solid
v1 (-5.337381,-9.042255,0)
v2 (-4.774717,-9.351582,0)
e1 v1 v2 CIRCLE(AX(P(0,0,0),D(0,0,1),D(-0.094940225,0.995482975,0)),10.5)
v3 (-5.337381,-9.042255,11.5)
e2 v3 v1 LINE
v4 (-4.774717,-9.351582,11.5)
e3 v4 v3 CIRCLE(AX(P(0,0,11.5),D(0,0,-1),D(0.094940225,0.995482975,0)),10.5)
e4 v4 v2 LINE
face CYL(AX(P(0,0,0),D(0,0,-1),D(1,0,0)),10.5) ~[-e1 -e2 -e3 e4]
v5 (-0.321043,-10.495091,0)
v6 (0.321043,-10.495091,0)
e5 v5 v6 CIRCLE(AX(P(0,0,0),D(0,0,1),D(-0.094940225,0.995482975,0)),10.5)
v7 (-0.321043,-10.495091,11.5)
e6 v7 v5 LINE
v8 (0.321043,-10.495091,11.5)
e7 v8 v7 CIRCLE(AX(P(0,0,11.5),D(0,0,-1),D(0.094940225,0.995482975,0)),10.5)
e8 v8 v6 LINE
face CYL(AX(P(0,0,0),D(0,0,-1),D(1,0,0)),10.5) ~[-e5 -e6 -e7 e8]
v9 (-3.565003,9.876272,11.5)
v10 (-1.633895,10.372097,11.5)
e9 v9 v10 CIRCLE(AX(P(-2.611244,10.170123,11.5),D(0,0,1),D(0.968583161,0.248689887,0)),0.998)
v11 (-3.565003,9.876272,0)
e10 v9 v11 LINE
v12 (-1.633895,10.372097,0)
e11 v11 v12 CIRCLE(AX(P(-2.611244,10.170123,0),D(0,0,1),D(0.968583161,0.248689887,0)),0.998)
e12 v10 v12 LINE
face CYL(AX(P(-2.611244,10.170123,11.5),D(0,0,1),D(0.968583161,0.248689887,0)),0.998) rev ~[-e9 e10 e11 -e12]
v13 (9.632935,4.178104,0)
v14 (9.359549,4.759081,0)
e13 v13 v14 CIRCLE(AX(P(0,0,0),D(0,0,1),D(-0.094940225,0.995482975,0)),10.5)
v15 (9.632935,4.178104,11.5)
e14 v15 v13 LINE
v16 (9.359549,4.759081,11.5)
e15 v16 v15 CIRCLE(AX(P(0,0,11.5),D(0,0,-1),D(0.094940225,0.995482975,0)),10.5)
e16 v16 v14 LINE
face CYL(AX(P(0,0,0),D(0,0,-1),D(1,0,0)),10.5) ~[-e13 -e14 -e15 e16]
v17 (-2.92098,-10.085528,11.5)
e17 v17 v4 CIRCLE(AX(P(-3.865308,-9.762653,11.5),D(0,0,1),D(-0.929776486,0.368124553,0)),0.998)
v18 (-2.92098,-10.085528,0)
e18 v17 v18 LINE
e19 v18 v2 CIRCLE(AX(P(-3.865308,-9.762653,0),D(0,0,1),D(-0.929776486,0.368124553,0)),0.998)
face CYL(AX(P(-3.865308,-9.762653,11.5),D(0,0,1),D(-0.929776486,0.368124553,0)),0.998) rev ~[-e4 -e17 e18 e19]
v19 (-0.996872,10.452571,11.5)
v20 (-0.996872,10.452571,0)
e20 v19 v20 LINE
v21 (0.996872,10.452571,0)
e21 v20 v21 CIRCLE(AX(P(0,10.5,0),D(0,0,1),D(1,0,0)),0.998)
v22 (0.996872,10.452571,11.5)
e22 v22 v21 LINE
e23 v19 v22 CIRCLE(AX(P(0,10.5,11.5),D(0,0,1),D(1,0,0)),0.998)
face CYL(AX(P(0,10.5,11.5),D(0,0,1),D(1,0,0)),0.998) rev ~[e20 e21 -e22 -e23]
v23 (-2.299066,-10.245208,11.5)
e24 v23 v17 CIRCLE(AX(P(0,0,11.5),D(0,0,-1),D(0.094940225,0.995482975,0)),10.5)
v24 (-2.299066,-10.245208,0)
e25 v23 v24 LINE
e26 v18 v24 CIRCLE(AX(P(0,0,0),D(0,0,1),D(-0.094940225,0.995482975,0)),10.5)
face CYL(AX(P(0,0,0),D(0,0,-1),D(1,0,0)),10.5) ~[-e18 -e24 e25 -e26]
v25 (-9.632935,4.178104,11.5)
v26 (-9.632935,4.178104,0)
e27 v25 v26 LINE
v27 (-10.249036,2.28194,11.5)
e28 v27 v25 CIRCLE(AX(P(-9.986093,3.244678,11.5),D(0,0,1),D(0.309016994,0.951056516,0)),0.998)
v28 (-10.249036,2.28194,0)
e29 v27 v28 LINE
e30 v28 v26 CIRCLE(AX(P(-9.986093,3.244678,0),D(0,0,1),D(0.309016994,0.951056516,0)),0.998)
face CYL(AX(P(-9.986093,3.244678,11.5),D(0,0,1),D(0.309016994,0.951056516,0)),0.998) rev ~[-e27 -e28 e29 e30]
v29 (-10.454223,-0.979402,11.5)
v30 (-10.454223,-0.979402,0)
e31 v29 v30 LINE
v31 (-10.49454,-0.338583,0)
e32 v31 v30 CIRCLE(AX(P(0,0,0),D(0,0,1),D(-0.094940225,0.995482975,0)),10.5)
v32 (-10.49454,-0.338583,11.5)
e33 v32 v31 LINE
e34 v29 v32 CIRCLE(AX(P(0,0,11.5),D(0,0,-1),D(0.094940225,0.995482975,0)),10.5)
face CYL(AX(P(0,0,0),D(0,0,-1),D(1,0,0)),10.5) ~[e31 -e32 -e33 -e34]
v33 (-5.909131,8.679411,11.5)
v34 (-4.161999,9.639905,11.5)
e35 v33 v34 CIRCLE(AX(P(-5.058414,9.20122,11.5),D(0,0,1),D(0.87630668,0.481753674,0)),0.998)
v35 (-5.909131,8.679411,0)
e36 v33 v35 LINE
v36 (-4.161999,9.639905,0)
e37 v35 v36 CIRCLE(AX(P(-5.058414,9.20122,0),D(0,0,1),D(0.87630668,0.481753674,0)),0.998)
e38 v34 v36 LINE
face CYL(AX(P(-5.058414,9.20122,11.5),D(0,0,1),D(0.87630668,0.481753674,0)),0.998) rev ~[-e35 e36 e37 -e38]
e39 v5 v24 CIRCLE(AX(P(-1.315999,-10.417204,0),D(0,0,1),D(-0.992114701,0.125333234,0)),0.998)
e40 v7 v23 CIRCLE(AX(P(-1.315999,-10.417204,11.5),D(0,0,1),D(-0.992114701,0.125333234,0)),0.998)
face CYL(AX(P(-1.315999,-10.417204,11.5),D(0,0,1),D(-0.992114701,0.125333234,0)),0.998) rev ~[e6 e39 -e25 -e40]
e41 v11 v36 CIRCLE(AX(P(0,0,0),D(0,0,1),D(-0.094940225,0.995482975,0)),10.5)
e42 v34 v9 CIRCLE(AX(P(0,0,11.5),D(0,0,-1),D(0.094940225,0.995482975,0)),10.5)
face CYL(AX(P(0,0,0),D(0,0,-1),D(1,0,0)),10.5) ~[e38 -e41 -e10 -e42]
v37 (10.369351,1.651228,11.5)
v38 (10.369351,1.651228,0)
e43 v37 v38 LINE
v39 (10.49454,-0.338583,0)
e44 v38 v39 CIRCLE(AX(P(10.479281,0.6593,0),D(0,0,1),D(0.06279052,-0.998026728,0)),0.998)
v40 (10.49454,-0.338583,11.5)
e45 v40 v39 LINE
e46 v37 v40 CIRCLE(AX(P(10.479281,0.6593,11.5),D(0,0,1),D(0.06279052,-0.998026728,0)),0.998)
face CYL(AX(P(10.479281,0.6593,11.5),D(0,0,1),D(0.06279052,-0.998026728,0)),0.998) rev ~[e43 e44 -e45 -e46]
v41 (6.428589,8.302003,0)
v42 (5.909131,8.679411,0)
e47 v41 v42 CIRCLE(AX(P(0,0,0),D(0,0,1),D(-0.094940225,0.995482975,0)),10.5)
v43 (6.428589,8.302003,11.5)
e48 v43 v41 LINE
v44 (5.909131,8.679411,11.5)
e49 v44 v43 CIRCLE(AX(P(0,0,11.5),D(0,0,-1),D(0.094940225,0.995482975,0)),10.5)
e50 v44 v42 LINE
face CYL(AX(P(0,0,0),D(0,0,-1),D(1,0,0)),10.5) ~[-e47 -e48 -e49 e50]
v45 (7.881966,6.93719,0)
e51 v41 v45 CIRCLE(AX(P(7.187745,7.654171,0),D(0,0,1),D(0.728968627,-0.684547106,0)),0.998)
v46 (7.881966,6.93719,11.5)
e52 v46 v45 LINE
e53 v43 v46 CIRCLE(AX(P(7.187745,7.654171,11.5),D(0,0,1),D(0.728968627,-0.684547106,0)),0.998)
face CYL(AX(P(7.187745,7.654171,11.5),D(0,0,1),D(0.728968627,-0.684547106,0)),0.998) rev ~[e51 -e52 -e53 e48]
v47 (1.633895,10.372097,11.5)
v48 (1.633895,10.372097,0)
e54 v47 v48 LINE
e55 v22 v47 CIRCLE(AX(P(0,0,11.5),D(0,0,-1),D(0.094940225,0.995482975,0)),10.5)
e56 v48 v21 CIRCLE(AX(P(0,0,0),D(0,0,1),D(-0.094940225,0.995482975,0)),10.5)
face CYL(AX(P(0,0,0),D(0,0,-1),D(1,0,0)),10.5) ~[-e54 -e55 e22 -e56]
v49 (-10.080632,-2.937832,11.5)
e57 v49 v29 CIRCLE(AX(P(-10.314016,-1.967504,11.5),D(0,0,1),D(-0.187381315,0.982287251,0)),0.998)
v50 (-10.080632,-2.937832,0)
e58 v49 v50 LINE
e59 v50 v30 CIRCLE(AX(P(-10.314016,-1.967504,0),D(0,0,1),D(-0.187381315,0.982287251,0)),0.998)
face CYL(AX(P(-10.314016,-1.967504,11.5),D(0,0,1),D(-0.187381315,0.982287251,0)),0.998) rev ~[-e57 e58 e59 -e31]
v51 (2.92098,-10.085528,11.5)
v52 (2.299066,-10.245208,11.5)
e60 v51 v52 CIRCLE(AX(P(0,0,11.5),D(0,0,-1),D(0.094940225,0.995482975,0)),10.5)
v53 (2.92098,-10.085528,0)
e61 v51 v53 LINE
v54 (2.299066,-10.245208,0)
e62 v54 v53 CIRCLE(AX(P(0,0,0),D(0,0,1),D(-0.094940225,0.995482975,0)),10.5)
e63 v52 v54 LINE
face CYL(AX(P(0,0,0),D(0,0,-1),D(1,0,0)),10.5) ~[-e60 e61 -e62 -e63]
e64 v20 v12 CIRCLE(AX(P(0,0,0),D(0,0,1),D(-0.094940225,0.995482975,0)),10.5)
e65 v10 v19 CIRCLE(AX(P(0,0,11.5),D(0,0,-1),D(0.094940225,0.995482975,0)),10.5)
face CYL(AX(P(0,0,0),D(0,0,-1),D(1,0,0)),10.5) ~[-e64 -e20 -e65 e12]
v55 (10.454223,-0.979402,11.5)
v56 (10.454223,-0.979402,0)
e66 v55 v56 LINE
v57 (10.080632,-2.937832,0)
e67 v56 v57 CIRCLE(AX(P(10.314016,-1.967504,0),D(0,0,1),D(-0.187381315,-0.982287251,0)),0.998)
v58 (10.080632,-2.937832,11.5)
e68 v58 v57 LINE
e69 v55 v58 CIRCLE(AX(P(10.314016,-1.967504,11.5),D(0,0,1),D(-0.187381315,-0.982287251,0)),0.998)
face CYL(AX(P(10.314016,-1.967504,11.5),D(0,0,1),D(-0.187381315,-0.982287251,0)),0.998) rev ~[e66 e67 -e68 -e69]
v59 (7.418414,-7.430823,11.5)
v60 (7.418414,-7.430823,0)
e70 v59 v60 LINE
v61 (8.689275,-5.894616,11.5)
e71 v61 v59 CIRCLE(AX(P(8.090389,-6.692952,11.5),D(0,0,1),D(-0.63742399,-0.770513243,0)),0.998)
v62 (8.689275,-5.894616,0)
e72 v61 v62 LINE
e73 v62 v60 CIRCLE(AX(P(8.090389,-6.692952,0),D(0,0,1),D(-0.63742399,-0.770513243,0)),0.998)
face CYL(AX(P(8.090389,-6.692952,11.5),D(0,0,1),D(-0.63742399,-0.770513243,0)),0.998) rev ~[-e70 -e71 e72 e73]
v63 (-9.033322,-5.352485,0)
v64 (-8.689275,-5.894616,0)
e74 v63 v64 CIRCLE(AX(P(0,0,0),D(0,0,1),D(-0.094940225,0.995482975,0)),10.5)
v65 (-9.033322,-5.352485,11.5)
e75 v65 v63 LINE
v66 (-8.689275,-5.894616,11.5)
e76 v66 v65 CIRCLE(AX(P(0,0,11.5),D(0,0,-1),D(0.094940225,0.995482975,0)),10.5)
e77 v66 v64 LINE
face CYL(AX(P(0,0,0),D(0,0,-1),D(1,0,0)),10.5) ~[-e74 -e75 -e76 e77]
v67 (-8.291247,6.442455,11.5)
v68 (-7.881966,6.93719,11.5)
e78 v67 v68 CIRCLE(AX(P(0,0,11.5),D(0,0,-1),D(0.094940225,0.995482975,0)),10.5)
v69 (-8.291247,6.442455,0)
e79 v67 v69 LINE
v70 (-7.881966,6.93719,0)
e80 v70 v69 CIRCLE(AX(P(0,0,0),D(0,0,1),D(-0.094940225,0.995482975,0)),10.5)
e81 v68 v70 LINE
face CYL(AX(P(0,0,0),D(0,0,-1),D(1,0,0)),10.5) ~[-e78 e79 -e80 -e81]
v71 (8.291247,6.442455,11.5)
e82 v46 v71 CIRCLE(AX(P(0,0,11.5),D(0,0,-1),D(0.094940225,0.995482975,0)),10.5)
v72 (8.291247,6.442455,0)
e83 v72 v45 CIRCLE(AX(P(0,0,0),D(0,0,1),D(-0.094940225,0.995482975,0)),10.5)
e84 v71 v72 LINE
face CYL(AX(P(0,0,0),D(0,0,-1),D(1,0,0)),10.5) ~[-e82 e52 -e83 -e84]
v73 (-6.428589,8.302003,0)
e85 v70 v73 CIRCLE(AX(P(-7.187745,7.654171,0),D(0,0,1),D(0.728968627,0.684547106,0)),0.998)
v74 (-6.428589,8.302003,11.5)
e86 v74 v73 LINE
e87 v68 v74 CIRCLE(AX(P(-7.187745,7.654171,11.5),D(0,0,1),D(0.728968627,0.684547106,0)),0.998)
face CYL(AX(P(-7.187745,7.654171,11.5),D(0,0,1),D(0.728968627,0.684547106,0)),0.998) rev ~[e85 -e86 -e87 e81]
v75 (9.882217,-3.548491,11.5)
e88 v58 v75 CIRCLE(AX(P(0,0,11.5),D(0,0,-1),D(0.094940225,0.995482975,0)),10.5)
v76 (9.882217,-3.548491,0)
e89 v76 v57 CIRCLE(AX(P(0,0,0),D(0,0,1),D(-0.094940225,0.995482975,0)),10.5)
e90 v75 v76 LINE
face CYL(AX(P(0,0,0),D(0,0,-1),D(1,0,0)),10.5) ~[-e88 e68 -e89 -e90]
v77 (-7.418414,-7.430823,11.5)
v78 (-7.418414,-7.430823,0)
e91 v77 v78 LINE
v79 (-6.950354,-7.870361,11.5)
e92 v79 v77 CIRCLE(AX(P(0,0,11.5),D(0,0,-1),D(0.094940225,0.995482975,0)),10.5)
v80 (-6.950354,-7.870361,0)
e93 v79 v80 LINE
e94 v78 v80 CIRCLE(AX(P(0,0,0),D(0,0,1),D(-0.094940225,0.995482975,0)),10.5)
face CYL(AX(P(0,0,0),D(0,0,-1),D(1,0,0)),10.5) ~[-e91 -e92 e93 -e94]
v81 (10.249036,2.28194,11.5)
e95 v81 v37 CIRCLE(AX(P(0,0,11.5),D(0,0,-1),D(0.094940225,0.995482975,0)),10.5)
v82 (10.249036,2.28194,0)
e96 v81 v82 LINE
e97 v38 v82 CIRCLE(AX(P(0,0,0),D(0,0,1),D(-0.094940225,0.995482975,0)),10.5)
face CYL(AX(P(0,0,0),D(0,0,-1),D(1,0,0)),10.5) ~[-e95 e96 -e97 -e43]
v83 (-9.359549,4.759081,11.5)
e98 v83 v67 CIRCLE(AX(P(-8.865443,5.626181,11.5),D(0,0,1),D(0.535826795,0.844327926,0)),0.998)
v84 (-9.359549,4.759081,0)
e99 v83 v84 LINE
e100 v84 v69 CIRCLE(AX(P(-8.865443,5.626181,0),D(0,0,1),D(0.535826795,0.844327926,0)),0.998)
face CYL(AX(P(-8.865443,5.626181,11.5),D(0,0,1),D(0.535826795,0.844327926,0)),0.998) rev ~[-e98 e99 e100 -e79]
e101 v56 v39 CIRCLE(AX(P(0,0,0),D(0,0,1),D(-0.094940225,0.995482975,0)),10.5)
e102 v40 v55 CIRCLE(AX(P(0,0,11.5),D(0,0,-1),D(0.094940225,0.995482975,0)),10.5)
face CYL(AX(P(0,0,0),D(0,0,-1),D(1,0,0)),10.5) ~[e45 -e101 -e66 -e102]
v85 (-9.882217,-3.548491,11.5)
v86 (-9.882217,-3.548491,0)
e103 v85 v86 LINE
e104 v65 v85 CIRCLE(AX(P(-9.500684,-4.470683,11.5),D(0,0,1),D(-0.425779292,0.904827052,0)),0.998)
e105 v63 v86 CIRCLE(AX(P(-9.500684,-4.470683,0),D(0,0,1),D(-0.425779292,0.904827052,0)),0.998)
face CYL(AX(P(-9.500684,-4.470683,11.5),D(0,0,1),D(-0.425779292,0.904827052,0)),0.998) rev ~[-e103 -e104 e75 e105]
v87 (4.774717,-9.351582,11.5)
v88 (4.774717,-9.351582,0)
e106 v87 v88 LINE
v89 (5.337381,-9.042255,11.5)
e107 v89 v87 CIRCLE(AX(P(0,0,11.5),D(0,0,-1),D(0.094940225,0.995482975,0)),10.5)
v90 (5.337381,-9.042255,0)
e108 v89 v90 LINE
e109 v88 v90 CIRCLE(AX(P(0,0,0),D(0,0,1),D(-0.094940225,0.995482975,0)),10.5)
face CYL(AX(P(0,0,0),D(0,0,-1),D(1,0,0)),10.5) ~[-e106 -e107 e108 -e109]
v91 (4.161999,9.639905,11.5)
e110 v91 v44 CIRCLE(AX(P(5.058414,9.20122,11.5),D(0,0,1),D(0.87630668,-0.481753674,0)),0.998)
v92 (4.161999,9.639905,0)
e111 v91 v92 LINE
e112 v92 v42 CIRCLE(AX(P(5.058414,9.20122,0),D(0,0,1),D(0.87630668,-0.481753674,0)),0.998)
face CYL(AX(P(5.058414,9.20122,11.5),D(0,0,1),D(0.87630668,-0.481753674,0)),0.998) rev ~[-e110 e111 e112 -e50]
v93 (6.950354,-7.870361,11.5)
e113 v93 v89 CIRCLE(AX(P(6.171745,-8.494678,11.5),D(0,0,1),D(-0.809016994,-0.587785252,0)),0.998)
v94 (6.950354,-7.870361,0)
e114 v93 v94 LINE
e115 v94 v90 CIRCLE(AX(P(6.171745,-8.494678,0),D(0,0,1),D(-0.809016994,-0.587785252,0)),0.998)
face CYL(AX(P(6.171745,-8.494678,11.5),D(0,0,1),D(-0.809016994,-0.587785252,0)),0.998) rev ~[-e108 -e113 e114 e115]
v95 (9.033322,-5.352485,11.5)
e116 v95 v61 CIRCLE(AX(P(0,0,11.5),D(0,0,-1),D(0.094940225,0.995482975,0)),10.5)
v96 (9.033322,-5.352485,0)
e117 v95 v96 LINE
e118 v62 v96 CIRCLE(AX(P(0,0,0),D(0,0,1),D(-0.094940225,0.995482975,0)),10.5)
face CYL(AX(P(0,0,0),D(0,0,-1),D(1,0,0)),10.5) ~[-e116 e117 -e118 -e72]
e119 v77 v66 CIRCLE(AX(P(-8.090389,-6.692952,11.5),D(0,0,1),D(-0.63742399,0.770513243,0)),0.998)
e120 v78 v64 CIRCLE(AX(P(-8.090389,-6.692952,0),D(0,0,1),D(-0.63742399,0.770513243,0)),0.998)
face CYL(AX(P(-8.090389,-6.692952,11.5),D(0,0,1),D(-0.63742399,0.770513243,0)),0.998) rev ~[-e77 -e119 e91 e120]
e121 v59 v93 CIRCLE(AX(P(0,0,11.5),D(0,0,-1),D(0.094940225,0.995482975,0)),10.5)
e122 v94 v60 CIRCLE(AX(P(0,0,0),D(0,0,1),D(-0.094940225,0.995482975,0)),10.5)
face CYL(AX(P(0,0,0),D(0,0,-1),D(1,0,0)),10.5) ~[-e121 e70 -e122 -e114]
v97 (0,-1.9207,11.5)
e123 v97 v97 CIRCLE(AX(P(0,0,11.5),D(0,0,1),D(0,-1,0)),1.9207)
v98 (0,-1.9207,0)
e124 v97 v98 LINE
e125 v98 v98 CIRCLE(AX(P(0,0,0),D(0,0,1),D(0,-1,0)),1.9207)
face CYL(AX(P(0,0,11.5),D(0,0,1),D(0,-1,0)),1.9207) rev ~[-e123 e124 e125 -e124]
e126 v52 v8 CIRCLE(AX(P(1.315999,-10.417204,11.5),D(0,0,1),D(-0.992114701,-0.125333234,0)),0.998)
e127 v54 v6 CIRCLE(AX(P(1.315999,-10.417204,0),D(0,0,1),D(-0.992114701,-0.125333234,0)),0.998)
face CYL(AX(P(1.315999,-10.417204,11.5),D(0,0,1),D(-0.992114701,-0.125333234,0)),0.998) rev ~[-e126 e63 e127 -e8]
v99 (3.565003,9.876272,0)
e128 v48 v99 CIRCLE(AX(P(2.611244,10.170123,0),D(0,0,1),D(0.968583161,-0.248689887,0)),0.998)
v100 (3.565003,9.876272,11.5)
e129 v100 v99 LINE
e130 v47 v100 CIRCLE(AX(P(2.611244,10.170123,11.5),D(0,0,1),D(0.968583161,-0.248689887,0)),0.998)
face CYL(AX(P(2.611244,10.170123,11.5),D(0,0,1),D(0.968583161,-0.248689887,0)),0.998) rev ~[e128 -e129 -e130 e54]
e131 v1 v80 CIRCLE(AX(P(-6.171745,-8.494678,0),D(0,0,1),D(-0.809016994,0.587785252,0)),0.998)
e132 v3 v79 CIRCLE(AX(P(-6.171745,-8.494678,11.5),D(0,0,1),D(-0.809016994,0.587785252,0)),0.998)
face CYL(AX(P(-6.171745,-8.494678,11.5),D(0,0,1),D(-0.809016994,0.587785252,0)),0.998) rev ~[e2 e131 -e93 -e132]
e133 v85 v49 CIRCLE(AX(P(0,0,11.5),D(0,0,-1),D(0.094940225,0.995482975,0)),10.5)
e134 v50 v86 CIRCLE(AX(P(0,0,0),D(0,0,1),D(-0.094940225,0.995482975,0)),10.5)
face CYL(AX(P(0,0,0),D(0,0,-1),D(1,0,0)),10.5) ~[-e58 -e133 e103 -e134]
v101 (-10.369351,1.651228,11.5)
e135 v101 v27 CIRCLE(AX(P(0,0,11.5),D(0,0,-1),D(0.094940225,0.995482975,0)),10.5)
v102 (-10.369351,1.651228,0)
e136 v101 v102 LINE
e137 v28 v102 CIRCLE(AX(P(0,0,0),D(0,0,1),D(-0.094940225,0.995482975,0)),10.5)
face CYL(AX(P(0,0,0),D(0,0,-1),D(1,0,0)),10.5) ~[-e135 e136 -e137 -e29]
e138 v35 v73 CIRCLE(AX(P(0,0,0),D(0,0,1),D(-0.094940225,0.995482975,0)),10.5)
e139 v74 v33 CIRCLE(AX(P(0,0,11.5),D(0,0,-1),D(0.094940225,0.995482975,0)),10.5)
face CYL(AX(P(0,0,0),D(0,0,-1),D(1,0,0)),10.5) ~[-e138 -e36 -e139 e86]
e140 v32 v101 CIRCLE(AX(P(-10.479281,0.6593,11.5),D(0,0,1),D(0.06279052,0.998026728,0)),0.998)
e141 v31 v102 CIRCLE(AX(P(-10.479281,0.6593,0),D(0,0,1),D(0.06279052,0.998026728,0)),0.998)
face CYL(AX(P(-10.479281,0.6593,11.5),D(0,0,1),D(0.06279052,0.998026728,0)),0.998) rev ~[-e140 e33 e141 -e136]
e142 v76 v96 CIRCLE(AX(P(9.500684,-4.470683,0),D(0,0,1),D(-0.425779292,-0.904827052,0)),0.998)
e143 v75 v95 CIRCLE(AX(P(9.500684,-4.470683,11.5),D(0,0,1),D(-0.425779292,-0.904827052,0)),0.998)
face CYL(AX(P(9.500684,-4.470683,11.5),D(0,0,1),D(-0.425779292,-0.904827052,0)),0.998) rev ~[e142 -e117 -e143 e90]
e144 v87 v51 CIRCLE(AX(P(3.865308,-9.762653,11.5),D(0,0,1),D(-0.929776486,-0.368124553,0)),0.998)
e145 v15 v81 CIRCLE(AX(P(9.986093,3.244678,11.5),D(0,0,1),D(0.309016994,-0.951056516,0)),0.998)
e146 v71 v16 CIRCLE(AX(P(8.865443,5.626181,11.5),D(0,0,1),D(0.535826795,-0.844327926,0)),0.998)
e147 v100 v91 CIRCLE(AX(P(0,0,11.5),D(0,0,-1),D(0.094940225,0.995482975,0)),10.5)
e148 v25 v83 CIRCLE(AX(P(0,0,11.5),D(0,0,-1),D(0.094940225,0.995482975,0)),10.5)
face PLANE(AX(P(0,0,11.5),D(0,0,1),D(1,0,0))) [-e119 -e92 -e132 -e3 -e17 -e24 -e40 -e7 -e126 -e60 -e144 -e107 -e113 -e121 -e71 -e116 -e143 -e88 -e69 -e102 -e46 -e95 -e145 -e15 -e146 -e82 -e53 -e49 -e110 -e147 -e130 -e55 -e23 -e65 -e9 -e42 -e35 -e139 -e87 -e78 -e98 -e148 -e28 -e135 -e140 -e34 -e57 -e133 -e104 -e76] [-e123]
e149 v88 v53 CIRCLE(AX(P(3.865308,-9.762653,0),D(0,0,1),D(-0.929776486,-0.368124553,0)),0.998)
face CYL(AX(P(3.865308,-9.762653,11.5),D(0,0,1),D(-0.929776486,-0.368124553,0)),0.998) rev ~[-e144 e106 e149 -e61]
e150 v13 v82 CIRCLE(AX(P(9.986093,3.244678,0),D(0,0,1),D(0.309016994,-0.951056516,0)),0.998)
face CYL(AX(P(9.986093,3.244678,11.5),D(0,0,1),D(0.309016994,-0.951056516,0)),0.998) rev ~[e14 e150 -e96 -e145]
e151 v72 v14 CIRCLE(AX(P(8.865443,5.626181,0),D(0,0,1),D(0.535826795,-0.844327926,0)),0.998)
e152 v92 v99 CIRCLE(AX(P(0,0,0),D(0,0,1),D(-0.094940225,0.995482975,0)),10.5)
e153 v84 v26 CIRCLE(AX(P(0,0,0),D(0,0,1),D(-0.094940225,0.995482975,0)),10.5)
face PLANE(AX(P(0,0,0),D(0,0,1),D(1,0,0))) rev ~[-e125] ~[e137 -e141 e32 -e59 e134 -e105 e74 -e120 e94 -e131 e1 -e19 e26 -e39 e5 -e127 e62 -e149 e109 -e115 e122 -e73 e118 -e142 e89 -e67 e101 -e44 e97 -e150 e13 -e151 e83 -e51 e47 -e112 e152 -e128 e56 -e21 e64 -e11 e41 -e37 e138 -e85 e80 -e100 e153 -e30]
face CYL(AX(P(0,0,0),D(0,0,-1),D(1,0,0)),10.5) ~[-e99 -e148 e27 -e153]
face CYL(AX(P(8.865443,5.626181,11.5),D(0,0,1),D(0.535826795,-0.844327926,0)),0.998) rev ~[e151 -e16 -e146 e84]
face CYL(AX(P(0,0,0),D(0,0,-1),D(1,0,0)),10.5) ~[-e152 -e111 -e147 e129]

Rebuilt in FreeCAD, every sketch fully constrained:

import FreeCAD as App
import Part
import Sketcher

doc = App.newDocument("Part")
body = doc.addObject("PartDesign::Body", "Body")

# Sketch on XY plane
sketch1 = doc.addObject("Sketcher::SketchObject", "Sketch")
body.addObject(sketch1)
sketch1.AttachmentSupport = (doc.XY_Plane, [""])
sketch1.MapMode = "FlatFace"
sketch1.addGeometry(Part.Circle(App.Vector(0, 0, 0), App.Vector(0, 0, 1), 10), False)
sketch1.addConstraint([
    Sketcher.Constraint("Coincident", 0, 3, -1, 1),
    Sketcher.Constraint("Diameter", 0, 21.0),
])
pad1 = doc.addObject("PartDesign::Pad", "Pad")
body.addObject(pad1)
pad1.Profile = sketch1
pad1.Length = 11.5

# Sketch on XY plane
sketch2 = doc.addObject("Sketcher::SketchObject", "Sketch001")
body.addObject(sketch2)
sketch2.AttachmentSupport = (doc.XY_Plane, [""])
sketch2.MapMode = "FlatFace"
sketch2.AttachmentOffset = App.Placement(App.Vector(0, 0, 11.5), App.Rotation())
sketch2.addGeometry(Part.Circle(App.Vector(0, 10.5, 0), App.Vector(0, 0, 1), 1), False)
sketch2.addConstraint([
    Sketcher.Constraint("PointOnObject", 0, 3, -2),
    Sketcher.Constraint("Diameter", 0, 1.996),
    Sketcher.Constraint("DistanceY", -1, 1, 0, 3, 10.5),
])
pocket1 = doc.addObject("PartDesign::Pocket", "Pocket")
body.addObject(pocket1)
pocket1.Profile = sketch2
pocket1.Type = "ThroughAll"
doc.recompute()

polarpattern = doc.addObject("PartDesign::PolarPattern", "PolarPattern")
body.addObject(polarpattern)
polarpattern.Originals = [pocket1]
polarpattern.Axis = (doc.Z_Axis, [""])
polarpattern.Angle = 360
polarpattern.Occurrences = 25
body.Tip = polarpattern

# Sketch on XY plane
sketch3 = doc.addObject("Sketcher::SketchObject", "Sketch002")
body.addObject(sketch3)
sketch3.AttachmentSupport = (doc.XY_Plane, [""])
sketch3.MapMode = "FlatFace"
sketch3.AttachmentOffset = App.Placement(App.Vector(0, 0, 11.5), App.Rotation())
sketch3.addGeometry(Part.Circle(App.Vector(0, 0, 0), App.Vector(0, 0, 1), 1.9), False)
sketch3.addConstraint([
    Sketcher.Constraint("Coincident", 0, 3, -1, 1),
    Sketcher.Constraint("Diameter", 0, 3.8414),
])
pocket2 = doc.addObject("PartDesign::Pocket", "Pocket001")
body.addObject(pocket2)
pocket2.Profile = sketch3
pocket2.Type = "ThroughAll"
pocket2.Midplane = True

doc.recompute()
